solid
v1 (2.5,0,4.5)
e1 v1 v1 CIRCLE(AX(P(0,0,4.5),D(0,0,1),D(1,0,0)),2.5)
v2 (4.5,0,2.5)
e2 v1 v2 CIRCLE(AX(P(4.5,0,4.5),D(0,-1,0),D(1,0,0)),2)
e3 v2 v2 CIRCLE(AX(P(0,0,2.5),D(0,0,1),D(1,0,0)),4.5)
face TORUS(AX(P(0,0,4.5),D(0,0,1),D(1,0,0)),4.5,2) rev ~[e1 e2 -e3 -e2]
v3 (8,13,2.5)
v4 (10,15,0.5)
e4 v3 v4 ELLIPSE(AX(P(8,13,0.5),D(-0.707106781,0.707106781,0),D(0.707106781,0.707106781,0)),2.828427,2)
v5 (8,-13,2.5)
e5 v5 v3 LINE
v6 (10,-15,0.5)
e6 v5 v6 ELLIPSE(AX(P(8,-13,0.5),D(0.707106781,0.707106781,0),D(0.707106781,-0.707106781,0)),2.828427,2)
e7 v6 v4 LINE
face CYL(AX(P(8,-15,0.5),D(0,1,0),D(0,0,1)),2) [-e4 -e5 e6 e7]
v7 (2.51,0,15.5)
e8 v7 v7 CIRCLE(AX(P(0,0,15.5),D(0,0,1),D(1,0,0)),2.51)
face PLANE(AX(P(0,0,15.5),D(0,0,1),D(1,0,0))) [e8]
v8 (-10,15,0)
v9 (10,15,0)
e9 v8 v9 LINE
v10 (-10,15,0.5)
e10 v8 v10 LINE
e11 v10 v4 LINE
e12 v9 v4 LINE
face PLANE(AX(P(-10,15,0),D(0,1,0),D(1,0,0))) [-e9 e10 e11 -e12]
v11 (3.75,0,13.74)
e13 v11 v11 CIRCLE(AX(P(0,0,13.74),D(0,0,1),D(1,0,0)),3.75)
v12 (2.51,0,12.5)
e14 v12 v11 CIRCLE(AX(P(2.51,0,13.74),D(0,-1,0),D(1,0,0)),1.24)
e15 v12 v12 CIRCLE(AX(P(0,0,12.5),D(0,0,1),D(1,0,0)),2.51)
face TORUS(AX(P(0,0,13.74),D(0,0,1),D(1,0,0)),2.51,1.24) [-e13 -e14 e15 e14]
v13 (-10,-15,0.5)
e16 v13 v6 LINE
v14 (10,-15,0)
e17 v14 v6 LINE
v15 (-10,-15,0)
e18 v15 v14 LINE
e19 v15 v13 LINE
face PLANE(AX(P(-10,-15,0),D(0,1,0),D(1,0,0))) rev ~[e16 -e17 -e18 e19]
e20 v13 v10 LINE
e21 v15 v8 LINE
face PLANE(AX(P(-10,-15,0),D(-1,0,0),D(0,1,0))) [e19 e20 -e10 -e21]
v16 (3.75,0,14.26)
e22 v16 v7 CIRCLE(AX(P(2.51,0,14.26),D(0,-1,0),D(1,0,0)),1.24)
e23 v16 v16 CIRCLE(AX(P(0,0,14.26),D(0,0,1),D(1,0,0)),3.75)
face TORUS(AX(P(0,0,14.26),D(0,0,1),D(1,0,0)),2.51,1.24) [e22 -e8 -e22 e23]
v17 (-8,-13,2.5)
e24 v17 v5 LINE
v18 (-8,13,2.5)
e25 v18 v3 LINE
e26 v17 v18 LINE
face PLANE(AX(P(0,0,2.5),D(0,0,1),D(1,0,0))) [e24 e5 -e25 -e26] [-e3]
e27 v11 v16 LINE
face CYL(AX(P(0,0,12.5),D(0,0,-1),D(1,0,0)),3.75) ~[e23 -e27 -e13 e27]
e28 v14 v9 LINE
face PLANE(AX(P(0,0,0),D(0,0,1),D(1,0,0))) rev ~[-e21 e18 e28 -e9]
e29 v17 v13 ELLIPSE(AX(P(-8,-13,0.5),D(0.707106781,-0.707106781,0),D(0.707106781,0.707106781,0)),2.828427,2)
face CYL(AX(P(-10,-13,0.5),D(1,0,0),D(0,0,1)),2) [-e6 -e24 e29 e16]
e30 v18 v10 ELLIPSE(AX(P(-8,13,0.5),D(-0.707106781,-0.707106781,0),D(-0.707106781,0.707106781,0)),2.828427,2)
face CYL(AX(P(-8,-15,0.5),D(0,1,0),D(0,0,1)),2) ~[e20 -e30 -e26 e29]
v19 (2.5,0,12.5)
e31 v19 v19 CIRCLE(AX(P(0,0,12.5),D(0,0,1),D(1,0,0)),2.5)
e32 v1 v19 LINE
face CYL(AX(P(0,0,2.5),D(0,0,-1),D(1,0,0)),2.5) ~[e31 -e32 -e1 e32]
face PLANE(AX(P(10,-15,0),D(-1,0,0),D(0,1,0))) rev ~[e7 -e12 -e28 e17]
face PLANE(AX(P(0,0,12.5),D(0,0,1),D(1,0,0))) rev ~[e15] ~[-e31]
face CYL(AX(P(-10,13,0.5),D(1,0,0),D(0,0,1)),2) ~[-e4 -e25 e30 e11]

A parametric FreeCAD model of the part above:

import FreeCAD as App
import Part
import Sketcher

V = App.Vector


def edges_at(feature, points):
    """Names of the edges that pass closest to the given points."""
    edges = feature.Shape.Edges
    near = lambda p: min(range(len(edges)), key=lambda i: edges[i].distToShape(Part.Vertex(*p))[0])
    return sorted({f"Edge{near(p) + 1}" for p in points})


def add_polygon(sketch, points):
    """Adds a closed chain of lines whose ends are joined by coincident constraints."""
    first, n = sketch.GeometryCount, len(points)
    for a, b in zip(points, points[1:] + points[:1]):
        sketch.addGeometry(Part.LineSegment(App.Vector(*a, 0), App.Vector(*b, 0)), False)
    for i in range(n):
        sketch.addConstraint(Sketcher.Constraint("Coincident", first + i, 2, first + (i + 1) % n, 1))

doc = App.newDocument("Part")
body = doc.addObject("PartDesign::Body", "Body")

# Sketch on XY plane
sketch1 = doc.addObject("Sketcher::SketchObject", "Sketch")
body.addObject(sketch1)
sketch1.AttachmentSupport = (doc.XY_Plane, [""])
sketch1.MapMode = "FlatFace"
add_polygon(sketch1, [(-10, 15), (-10, -15), (10, -15), (10, 15)])  # lines 0-3
sketch1.addConstraint([
    Sketcher.Constraint("Vertical", 0),
    Sketcher.Constraint("Horizontal", 1),
    Sketcher.Constraint("Vertical", 2),
    Sketcher.Constraint("Horizontal", 3),
    Sketcher.Constraint("Symmetric", 0, 2, 2, 2, -1, 1),
    Sketcher.Constraint("DistanceX", 1, 1, 1, 2, 20.0),
    Sketcher.Constraint("DistanceY", 0, 2, 0, 1, 30.0),
])
pad1 = doc.addObject("PartDesign::Pad", "Pad")
body.addObject(pad1)
pad1.Profile = sketch1
pad1.Length = 2.5

# Sketch on XY plane
sketch2 = doc.addObject("Sketcher::SketchObject", "Sketch001")
body.addObject(sketch2)
sketch2.AttachmentSupport = (doc.XY_Plane, [""])
sketch2.MapMode = "FlatFace"
sketch2.AttachmentOffset = App.Placement(V(0, 0, 2.5), App.Rotation())
sketch2.addGeometry(Part.Circle(V(0, 0, 0), V(0, 0, 1), 2.5), False)
sketch2.addConstraint([
    Sketcher.Constraint("Coincident", 0, 3, -1, 1),
    Sketcher.Constraint("Diameter", 0, 5.0),
])
pad2 = doc.addObject("PartDesign::Pad", "Pad001")
body.addObject(pad2)
pad2.Profile = sketch2
pad2.Length = 10

# Sketch on XY plane
sketch3 = doc.addObject("Sketcher::SketchObject", "Sketch002")
body.addObject(sketch3)
sketch3.AttachmentSupport = (doc.XY_Plane, [""])
sketch3.MapMode = "FlatFace"
sketch3.AttachmentOffset = App.Placement(V(0, 0, 12.5), App.Rotation())
sketch3.addGeometry(Part.Circle(V(0, 0, 0), V(0, 0, 1), 3.8), False)
sketch3.addConstraint([
    Sketcher.Constraint("Coincident", 0, 3, -1, 1),
    Sketcher.Constraint("Diameter", 0, 7.5),
])
pad3 = doc.addObject("PartDesign::Pad", "Pad002")
body.addObject(pad3)
pad3.Profile = sketch3
pad3.Length = 3
doc.recompute()

fillet = doc.addObject("PartDesign::Fillet", "Fillet")
body.addObject(fillet)
fillet.Base = (pad3, edges_at(pad3, [
    (-10, 0, 2.5),
    (0, -15, 2.5),
    (10, 0, 2.5),
    (0, 15, 2.5),
    (-2.5, 0, 2.5),
]))
fillet.Radius = 2
doc.recompute()

fillet2 = doc.addObject("PartDesign::Fillet", "Fillet001")
body.addObject(fillet2)
fillet2.Base = (fillet, edges_at(fillet, [(-3.75, 0, 12.5), (-3.75, 0, 15.5)]))
fillet2.Radius = 1.24

doc.recompute()
